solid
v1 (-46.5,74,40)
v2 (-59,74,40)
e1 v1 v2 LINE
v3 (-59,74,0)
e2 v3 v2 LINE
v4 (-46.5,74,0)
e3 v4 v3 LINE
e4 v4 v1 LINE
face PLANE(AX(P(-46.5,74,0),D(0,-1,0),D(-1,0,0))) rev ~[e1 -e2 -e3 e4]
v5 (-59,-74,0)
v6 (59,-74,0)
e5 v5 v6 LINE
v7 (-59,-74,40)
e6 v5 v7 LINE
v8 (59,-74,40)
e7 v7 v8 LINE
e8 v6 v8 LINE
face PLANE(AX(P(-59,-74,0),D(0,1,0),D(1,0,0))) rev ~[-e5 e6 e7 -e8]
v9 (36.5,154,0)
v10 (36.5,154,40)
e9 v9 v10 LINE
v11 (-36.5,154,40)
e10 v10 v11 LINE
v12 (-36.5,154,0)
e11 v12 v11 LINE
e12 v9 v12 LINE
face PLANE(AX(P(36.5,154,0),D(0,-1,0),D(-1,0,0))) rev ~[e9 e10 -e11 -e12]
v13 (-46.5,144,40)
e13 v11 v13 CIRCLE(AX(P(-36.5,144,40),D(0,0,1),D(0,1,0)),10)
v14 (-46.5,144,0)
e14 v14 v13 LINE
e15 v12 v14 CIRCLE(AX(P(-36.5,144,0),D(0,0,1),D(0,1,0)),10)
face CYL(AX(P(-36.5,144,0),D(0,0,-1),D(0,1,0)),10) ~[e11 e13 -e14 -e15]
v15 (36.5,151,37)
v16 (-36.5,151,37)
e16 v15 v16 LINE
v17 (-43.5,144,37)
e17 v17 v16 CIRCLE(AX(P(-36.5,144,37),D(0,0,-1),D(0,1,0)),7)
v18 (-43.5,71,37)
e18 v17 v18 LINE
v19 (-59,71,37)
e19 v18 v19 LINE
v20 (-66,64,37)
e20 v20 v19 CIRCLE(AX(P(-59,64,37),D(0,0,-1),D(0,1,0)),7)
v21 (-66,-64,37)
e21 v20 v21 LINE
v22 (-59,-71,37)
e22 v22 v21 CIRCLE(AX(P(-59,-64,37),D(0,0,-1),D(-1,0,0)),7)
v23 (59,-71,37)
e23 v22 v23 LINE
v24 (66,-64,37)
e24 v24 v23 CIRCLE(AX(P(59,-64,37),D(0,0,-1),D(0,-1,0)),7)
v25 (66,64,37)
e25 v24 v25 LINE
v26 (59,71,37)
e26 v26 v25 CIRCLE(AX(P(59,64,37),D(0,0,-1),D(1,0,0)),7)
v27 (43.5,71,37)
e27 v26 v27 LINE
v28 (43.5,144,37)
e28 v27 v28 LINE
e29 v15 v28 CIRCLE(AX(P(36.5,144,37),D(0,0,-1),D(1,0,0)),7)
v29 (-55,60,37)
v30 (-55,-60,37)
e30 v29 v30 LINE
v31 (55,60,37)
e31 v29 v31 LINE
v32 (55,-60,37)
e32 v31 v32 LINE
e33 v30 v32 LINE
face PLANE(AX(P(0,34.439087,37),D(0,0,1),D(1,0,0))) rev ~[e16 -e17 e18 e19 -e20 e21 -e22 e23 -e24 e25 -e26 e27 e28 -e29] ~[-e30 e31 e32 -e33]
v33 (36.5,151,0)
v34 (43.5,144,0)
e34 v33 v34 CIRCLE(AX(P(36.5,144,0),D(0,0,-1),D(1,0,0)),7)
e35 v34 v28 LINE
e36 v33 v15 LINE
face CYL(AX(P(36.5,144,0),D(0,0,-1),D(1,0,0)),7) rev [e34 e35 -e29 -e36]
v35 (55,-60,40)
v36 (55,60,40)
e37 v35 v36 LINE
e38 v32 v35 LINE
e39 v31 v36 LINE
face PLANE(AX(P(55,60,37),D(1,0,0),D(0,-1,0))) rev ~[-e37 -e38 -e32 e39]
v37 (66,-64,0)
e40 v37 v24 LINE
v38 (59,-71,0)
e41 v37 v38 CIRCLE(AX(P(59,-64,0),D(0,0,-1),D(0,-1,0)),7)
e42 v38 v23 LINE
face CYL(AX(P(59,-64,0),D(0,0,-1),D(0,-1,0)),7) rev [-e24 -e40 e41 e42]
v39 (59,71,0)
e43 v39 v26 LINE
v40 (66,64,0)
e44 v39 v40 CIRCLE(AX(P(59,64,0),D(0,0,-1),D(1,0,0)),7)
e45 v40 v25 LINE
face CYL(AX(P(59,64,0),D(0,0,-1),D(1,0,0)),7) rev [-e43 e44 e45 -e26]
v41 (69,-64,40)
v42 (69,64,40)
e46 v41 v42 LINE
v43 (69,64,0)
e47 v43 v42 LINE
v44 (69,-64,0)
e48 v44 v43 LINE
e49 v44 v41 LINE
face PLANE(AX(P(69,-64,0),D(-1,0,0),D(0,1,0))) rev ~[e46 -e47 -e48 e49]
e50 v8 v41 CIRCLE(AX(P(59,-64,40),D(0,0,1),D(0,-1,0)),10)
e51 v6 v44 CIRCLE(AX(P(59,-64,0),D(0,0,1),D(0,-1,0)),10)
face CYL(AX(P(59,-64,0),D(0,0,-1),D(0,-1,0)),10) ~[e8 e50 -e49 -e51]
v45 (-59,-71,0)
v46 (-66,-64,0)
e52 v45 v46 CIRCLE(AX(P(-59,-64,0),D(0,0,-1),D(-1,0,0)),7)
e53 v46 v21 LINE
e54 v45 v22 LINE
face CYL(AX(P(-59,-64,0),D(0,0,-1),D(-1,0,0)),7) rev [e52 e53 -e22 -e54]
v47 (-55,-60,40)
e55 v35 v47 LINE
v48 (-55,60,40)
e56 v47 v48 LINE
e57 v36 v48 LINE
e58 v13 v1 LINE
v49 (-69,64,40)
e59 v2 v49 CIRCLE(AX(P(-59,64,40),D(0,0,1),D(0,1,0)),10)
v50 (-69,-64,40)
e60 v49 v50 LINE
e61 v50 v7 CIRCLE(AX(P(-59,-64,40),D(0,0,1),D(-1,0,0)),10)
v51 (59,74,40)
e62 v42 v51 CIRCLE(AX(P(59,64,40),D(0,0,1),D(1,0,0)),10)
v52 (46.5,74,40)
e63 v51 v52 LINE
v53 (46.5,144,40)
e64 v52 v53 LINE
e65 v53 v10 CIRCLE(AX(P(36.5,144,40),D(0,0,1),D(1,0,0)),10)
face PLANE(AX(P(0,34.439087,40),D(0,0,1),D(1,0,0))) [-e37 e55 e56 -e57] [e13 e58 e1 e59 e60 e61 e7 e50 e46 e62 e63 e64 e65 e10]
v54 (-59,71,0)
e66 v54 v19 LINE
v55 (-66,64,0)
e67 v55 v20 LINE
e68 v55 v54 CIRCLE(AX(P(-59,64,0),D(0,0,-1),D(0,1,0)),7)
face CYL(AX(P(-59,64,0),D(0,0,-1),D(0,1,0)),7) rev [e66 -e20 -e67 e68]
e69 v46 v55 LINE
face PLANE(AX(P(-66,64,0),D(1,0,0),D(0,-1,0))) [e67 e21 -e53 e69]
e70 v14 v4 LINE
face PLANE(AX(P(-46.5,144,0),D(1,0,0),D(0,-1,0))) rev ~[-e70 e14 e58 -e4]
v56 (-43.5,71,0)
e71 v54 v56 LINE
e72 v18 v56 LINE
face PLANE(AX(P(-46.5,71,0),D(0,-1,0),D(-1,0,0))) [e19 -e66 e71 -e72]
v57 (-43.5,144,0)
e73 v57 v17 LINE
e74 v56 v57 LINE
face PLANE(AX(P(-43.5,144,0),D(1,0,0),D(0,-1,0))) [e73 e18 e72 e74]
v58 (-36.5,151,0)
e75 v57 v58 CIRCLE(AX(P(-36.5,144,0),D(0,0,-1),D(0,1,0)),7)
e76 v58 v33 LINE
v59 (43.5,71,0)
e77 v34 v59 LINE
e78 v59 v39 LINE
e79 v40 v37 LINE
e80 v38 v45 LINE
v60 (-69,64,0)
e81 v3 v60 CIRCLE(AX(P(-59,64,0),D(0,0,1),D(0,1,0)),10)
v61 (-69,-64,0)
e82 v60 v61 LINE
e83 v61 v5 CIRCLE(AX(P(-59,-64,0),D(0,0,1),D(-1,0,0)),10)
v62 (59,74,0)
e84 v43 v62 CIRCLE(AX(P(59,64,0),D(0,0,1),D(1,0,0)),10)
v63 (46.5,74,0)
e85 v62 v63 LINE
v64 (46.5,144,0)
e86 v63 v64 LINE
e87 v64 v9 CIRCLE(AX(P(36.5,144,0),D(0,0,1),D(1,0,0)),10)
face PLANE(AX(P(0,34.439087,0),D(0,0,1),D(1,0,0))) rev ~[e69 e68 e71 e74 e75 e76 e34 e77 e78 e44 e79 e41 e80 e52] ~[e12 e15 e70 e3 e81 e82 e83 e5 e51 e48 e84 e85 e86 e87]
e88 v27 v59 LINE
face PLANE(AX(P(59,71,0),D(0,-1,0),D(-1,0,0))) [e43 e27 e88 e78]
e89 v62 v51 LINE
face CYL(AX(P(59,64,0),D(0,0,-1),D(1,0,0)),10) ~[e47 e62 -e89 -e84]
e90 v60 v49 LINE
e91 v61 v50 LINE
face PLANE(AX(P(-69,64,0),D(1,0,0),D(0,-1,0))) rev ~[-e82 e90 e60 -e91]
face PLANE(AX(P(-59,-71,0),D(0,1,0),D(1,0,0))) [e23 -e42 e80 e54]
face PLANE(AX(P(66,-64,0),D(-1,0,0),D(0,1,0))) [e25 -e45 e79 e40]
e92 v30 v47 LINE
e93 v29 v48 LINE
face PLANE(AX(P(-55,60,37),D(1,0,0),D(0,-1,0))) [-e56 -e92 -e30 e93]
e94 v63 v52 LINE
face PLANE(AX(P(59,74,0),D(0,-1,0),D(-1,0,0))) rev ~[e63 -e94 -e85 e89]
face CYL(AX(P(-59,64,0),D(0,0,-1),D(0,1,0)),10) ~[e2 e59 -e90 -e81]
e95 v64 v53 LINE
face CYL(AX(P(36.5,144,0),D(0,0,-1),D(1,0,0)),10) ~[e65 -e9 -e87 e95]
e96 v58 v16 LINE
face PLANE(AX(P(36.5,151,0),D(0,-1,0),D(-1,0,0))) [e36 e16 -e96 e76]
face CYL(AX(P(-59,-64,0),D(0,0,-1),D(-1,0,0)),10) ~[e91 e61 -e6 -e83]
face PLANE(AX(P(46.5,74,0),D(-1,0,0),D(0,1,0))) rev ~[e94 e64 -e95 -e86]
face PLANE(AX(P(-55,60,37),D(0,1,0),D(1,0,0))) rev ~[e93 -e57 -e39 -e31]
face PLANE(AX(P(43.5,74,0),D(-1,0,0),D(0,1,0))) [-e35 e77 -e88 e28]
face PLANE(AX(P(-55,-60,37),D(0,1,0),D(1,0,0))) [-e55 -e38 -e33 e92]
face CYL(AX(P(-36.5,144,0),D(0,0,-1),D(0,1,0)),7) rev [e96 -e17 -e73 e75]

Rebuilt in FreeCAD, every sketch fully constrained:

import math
import FreeCAD as App
import Part
import Sketcher
from FreeCAD import Vector
Q = App.Units.Quantity


def faces_at(feature, points):
    """Names of the faces that lie closest to the given points."""
    faces = feature.Shape.Faces
    near = lambda p: min(range(len(faces)), key=lambda i: faces[i].distToShape(Part.Vertex(*p))[0])
    return sorted({f"Face{near(p) + 1}" for p in points})

doc = App.newDocument("Part")
body = doc.addObject("PartDesign::Body", "Body")

sketch1 = body.newObject("Sketcher::SketchObject", "Sketch")
sketch1.AttachmentSupport = (doc.getObject("XY_Plane"), [""])
sketch1.MapMode = "FlatFace"
sketch1.addGeometry([
    Part.ArcOfCircle(Part.Circle(Vector(-59, -64, 0), Vector(0, 0, 1), 10), math.radians(180), math.radians(270)),
    Part.LineSegment(Vector(-59, -74, 0), Vector(59, -74, 0)),
    Part.ArcOfCircle(Part.Circle(Vector(59, -64, 0), Vector(0, 0, 1), 10), math.radians(-90), math.radians(0)),
    Part.LineSegment(Vector(69, -64, 0), Vector(69, 64, 0)),
    Part.ArcOfCircle(Part.Circle(Vector(59, 64, 0), Vector(0, 0, 1), 10), math.radians(0), math.radians(90)),
    Part.LineSegment(Vector(59, 74, 0), Vector(46, 74, 0)),
    Part.LineSegment(Vector(46, 74, 0), Vector(46, 144, 0)),
    Part.ArcOfCircle(Part.Circle(Vector(36, 144, 0), Vector(0, 0, 1), 10), math.radians(0), math.radians(90)),
    Part.LineSegment(Vector(36, 154, 0), Vector(-36, 154, 0)),
    Part.ArcOfCircle(Part.Circle(Vector(-36, 144, 0), Vector(0, 0, 1), 10), math.radians(90), math.radians(180)),
    Part.LineSegment(Vector(-46, 144, 0), Vector(-46, 74, 0)),
    Part.LineSegment(Vector(-46, 74, 0), Vector(-59, 74, 0)),
    Part.ArcOfCircle(Part.Circle(Vector(-59, 64, 0), Vector(0, 0, 1), 10), math.radians(90), math.radians(180)),
    Part.LineSegment(Vector(-69, 64, 0), Vector(-69, -64, 0)),
], False)
sketch1.addConstraint([
    Sketcher.Constraint("Tangent", 0, 2, 1, 1),
    Sketcher.Constraint("Tangent", 1, 2, 2, 1),
    Sketcher.Constraint("Tangent", 2, 2, 3, 1),
    Sketcher.Constraint("Tangent", 3, 2, 4, 1),
    Sketcher.Constraint("Tangent", 4, 2, 5, 1),
    Sketcher.Constraint("Coincident", 5, 2, 6, 1),
    Sketcher.Constraint("Tangent", 6, 2, 7, 1),
    Sketcher.Constraint("Tangent", 7, 2, 8, 1),
    Sketcher.Constraint("Tangent", 8, 2, 9, 1),
    Sketcher.Constraint("Tangent", 9, 2, 10, 1),
    Sketcher.Constraint("Coincident", 10, 2, 11, 1),
    Sketcher.Constraint("Tangent", 11, 2, 12, 1),
    Sketcher.Constraint("Tangent", 12, 2, 13, 1),
    Sketcher.Constraint("Tangent", 13, 2, 0, 1),
    Sketcher.Constraint("Horizontal", 1),
    Sketcher.Constraint("Vertical", 3),
    Sketcher.Constraint("Horizontal", 5),
    Sketcher.Constraint("Vertical", 6),
    Sketcher.Constraint("Horizontal", 8),
    Sketcher.Constraint("Vertical", 10),
    Sketcher.Constraint("Horizontal", 11),
    Sketcher.Constraint("Vertical", 13),
    Sketcher.Constraint("Equal", 0, 2),
    Sketcher.Constraint("Equal", 2, 4),
    Sketcher.Constraint("Equal", 4, 7),
    Sketcher.Constraint("Equal", 7, 9),
    Sketcher.Constraint("Equal", 9, 12),
    Sketcher.Constraint("Symmetric", 0, 3, 4, 3, -1, 1),
    Sketcher.Constraint("Symmetric", 5, 2, 10, 2, -2),
    Sketcher.Constraint("Radius", 0, Q("10 mm")),
    Sketcher.Constraint("DistanceX", 1, 1, 1, 2, Q("118 mm")),
    Sketcher.Constraint("DistanceX", 8, 2, 8, 1, Q("73 mm")),
    Sketcher.Constraint("DistanceY", 3, 1, 3, 2, Q("128 mm")),
    Sketcher.Constraint("DistanceY", 6, 1, 6, 2, Q("70 mm")),
])
pad1 = body.newObject("PartDesign::Pad", "Pad")
pad1.Profile = sketch1
pad1.Length = 40
doc.recompute()

thickness = body.newObject("PartDesign::Thickness", "Thickness")
thickness.Base = (pad1, faces_at(pad1, [(0, 40, 0)]))
thickness.Value = 3
thickness.Reversed = True
thickness.Join = "Intersection"

sketch2 = body.newObject("Sketcher::SketchObject", "Sketch001")
sketch2.AttachmentSupport = (doc.getObject("XY_Plane"), [""])
sketch2.MapMode = "FlatFace"
sketch2.AttachmentOffset = App.Placement(Vector(0, 0, 37), App.Rotation())
sketch2.addGeometry([
    Part.LineSegment(Vector(-55, -60, 0), Vector(-55, 60, 0)),
    Part.LineSegment(Vector(-55, 60, 0), Vector(55, 60, 0)),
    Part.LineSegment(Vector(55, 60, 0), Vector(55, -60, 0)),
    Part.LineSegment(Vector(55, -60, 0), Vector(-55, -60, 0)),
], False)
sketch2.addConstraint([
    Sketcher.Constraint("Coincident", 0, 2, 1, 1),
    Sketcher.Constraint("Coincident", 1, 2, 2, 1),
    Sketcher.Constraint("Coincident", 2, 2, 3, 1),
    Sketcher.Constraint("Coincident", 3, 2, 0, 1),
    Sketcher.Constraint("Vertical", 0),
    Sketcher.Constraint("Horizontal", 1),
    Sketcher.Constraint("Vertical", 2),
    Sketcher.Constraint("Horizontal", 3),
    Sketcher.Constraint("Symmetric", 0, 2, 2, 2, -1, 1),
    Sketcher.Constraint("DistanceX", 1, 1, 1, 2, Q("110 mm")),
    Sketcher.Constraint("DistanceY", 0, 1, 0, 2, Q("120 mm")),
])
pocket1 = body.newObject("PartDesign::Pocket", "Pocket")
pocket1.Profile = sketch2
pocket1.Length = 25
pocket1.Reversed = True

doc.recompute()
